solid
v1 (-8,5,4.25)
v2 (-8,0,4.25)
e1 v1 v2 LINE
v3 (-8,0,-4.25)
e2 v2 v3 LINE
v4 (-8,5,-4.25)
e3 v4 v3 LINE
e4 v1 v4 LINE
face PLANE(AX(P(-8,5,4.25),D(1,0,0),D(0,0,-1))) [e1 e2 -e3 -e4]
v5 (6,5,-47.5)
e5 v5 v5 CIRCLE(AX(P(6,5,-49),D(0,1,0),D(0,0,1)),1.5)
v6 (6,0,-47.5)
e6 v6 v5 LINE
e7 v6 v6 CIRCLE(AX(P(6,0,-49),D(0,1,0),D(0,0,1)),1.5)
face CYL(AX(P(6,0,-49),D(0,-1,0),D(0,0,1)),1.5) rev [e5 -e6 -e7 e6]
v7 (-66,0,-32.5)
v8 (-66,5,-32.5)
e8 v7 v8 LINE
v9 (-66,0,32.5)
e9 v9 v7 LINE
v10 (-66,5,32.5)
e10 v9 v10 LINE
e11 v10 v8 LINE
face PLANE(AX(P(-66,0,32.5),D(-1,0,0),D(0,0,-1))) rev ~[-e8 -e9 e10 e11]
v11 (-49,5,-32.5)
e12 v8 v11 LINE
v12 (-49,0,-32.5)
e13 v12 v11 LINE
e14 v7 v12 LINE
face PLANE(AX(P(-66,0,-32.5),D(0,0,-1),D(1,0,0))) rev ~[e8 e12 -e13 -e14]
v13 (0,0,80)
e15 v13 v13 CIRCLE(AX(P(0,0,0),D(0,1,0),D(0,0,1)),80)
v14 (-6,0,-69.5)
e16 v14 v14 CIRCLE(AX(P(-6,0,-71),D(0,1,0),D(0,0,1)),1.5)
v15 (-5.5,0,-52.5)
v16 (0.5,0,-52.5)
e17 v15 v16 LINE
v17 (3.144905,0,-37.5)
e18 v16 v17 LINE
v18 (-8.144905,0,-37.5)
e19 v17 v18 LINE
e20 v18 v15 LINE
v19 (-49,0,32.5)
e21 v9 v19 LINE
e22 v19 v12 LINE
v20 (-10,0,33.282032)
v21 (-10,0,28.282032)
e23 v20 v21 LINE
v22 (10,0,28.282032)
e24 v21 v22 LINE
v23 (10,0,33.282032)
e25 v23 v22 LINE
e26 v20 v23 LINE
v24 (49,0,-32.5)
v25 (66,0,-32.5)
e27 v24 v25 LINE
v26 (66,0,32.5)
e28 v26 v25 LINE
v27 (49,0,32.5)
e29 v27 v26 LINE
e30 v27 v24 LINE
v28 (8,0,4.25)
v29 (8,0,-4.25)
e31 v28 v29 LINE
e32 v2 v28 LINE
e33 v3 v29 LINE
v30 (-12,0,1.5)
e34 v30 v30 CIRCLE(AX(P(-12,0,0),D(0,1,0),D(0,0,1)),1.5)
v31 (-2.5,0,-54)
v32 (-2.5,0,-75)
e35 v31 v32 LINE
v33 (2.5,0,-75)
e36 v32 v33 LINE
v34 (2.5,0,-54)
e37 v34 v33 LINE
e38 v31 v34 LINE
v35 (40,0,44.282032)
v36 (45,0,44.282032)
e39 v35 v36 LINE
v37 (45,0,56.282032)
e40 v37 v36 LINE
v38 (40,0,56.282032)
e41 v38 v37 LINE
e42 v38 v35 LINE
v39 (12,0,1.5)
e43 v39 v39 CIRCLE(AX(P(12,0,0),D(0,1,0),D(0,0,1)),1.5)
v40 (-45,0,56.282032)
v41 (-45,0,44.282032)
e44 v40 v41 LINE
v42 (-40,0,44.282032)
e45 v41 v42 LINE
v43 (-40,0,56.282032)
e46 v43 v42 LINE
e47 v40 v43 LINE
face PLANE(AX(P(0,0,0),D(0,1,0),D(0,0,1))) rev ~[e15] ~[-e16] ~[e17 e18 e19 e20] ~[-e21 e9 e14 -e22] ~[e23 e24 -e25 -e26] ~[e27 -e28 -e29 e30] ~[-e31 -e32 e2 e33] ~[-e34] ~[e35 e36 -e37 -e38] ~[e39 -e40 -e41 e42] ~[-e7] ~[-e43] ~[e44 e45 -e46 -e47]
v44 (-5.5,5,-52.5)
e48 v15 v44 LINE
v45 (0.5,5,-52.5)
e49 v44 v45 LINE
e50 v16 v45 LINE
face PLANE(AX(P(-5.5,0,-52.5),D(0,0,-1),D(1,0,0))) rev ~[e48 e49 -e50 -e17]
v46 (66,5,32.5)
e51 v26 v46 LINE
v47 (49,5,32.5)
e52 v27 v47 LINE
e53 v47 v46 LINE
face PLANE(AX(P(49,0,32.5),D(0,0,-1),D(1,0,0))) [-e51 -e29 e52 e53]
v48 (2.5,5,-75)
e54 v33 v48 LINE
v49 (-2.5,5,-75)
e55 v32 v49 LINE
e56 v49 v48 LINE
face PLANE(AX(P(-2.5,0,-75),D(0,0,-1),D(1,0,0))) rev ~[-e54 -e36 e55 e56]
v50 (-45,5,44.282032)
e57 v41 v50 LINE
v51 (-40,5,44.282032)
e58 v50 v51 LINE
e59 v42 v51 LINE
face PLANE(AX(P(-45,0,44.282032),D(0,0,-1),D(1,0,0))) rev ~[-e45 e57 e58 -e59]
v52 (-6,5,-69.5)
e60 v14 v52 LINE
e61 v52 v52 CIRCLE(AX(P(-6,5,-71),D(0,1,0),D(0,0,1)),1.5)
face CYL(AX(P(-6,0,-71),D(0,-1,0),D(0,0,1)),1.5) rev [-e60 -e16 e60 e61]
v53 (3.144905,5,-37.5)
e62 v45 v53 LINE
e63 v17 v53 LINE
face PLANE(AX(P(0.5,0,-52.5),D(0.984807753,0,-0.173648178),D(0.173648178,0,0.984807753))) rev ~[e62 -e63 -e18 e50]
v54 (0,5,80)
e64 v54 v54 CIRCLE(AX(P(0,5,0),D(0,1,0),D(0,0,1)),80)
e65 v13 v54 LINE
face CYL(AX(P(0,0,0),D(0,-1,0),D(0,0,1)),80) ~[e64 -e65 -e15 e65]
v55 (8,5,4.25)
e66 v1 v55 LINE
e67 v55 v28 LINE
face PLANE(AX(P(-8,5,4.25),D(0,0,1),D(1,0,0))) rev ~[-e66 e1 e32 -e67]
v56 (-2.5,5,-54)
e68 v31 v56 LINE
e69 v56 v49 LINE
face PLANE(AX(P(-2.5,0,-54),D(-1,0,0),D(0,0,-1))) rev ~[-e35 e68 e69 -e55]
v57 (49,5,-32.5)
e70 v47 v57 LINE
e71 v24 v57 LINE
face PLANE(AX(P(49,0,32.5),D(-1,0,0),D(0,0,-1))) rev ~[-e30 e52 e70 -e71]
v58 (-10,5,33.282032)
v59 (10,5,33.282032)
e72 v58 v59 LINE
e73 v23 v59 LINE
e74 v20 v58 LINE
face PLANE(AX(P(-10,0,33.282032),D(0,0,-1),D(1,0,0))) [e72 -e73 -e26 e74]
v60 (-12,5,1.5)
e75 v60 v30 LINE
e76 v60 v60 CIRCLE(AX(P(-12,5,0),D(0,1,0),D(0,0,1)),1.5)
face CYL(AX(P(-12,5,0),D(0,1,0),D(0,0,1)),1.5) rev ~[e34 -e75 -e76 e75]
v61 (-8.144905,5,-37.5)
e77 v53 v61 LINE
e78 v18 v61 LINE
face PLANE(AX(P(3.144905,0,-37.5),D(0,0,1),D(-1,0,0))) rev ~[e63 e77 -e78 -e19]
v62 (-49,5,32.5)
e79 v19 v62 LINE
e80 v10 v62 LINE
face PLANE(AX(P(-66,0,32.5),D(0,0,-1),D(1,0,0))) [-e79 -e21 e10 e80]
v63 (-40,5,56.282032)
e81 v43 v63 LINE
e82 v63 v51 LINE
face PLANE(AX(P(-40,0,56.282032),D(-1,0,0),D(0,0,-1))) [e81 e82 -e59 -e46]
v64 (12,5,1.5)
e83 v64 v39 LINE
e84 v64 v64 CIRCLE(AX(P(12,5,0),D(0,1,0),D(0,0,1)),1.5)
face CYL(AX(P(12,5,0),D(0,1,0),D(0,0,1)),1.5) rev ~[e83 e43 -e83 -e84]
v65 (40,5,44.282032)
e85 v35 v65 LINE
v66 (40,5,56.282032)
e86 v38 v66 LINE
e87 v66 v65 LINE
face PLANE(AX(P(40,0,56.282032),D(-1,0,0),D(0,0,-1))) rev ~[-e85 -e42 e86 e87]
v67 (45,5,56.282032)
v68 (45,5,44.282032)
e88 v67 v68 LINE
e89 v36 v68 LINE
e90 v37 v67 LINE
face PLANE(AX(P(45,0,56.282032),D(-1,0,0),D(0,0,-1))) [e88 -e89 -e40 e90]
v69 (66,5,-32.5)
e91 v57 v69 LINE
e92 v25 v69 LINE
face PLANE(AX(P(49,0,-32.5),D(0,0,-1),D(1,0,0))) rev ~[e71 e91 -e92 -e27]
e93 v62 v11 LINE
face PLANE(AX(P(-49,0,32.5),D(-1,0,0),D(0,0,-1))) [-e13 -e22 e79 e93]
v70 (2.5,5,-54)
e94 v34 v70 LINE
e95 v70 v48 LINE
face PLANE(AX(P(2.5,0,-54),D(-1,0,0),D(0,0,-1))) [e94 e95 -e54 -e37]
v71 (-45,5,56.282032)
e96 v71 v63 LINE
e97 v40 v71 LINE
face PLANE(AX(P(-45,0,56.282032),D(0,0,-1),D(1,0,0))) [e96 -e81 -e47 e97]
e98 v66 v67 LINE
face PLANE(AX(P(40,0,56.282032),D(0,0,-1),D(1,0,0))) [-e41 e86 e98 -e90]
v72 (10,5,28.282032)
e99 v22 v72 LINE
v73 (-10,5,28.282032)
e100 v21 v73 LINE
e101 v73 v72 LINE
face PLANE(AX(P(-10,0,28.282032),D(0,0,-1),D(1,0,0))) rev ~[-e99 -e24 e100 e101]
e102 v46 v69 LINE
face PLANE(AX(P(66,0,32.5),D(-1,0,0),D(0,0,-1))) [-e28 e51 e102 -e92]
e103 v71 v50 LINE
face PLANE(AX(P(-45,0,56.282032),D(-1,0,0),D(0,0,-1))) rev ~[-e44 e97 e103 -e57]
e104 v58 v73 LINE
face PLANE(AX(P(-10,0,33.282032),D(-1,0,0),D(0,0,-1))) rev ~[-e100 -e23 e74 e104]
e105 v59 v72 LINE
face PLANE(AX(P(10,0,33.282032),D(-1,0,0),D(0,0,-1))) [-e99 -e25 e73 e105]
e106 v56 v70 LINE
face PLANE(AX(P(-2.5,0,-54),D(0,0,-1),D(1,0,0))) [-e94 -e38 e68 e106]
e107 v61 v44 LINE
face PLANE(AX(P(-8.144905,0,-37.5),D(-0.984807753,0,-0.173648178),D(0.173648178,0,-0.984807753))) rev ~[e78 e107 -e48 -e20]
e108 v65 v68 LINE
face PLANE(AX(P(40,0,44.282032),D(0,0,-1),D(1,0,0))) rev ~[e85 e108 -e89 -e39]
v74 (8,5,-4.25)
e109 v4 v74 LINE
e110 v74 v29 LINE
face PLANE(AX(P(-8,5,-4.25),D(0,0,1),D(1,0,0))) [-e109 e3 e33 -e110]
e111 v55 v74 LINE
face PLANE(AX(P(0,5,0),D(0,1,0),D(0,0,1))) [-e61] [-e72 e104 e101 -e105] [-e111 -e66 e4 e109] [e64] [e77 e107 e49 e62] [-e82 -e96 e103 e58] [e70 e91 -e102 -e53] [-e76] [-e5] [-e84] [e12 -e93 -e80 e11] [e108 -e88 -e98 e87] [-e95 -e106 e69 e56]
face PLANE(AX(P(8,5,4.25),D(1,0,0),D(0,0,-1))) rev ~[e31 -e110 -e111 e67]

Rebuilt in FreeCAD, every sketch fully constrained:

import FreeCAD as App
import Part
import Sketcher
from FreeCAD import Vector
Q = App.Units.Quantity


def add_polygon(sketch, points):
    """Adds a closed chain of lines whose ends are joined by coincident constraints."""
    first, n = sketch.GeometryCount, len(points)
    for a, b in zip(points, points[1:] + points[:1]):
        sketch.addGeometry(Part.LineSegment(App.Vector(*a, 0), App.Vector(*b, 0)), False)
    for i in range(n):
        sketch.addConstraint(Sketcher.Constraint("Coincident", first + i, 2, first + (i + 1) % n, 1))

doc = App.newDocument("Part")
body = doc.addObject("PartDesign::Body", "Body")

sketch1 = doc.addObject("Sketcher::SketchObject", "Sketch")
body.addObject(sketch1)
sketch1.AttachmentSupport = (doc.XZ_Plane, [""])
sketch1.MapMode = "FlatFace"
sketch1.addGeometry(Part.Circle(Vector(0, 0, 0), Vector(0, 0, 1), 80), False)
sketch1.addGeometry(Part.Circle(Vector(-6, -71, 0), Vector(0, 0, 1), 1.5), False)
add_polygon(sketch1, [(2.5, -54), (-2.5, -54), (-2.5, -75), (2.5, -75)])
add_polygon(sketch1, [(-8.144905, -37.5), (-5.5, -52.5), (0.5, -52.5), (3.144905, -37.5)])
add_polygon(sketch1, [(-49, 32.5), (-66, 32.5), (-66, -32.5), (-49, -32.5)])
add_polygon(sketch1, [(-40, 56.282032), (-45, 56.282032), (-45, 44.282032), (-40, 44.282032)])
sketch1.addGeometry(Part.Circle(Vector(6, -49, 0), Vector(0, 0, 1), 1.5), False)
add_polygon(sketch1, [(10, 33.282032), (-10, 33.282032), (-10, 28.282032), (10, 28.282032)])
add_polygon(sketch1, [(66, 32.5), (49, 32.5), (49, -32.5), (66, -32.5)])
add_polygon(sketch1, [(45, 56.282032), (40, 56.282032), (40, 44.282032), (45, 44.282032)])
sketch1.addConstraint([
    Sketcher.Constraint("Horizontal", 2),
    Sketcher.Constraint("Vertical", 3),
    Sketcher.Constraint("Horizontal", 4),
    Sketcher.Constraint("Vertical", 5),
    Sketcher.Constraint("Horizontal", 7),
    Sketcher.Constraint("Horizontal", 9),
    Sketcher.Constraint("Horizontal", 10),
    Sketcher.Constraint("Vertical", 11),
    Sketcher.Constraint("Horizontal", 12),
    Sketcher.Constraint("Vertical", 13),
    Sketcher.Constraint("Horizontal", 14),
    Sketcher.Constraint("Vertical", 15),
    Sketcher.Constraint("Horizontal", 16),
    Sketcher.Constraint("Vertical", 17),
    Sketcher.Constraint("Horizontal", 19),
    Sketcher.Constraint("Vertical", 20),
    Sketcher.Constraint("Horizontal", 21),
    Sketcher.Constraint("Vertical", 22),
    Sketcher.Constraint("Horizontal", 23),
    Sketcher.Constraint("Vertical", 24),
    Sketcher.Constraint("Horizontal", 25),
    Sketcher.Constraint("Vertical", 26),
    Sketcher.Constraint("Horizontal", 27),
    Sketcher.Constraint("Vertical", 28),
    Sketcher.Constraint("Horizontal", 29),
    Sketcher.Constraint("Vertical", 30),
    Sketcher.Constraint("Coincident", 0, 3, -1, 1),
    Sketcher.Constraint("Equal", 1, 18),
    Sketcher.Constraint("Symmetric", 12, 2, 23, 2, -1, 1),
    Sketcher.Constraint("Symmetric", 10, 2, 25, 2, -1, 1),
    Sketcher.Constraint("Symmetric", 17, 2, 27, 2, -2),
    Sketcher.Constraint("Symmetric", 15, 2, 29, 2, -2),
    Sketcher.Constraint("Horizontal", 13, 2, 23, 2),
    Sketcher.Constraint("Equal", 4, 14),
    Sketcher.Constraint("Equal", 29, 20),
    Sketcher.Constraint("Equal", 6, 8),
    Sketcher.Constraint("Diameter", 0, 160.0),
    Sketcher.Constraint("Diameter", 1, 3.0),
    Sketcher.Constraint("DistanceX", 2, 2, 2, 1, 5.0),
    Sketcher.Constraint("DistanceX", 7, 1, 7, 2, 6.0),
    Sketcher.Constraint("DistanceX", 10, 2, 10, 1, 17.0),
    Sketcher.Constraint("DistanceX", 19, 2, 19, 1, 20.0),
    Sketcher.Constraint("DistanceY", 3, 2, 3, 1, 21.0),
    Sketcher.Constraint("DistanceY", 11, 2, 11, 1, 65.0),
    Sketcher.Constraint("DistanceY", 15, 2, 15, 1, 12.0),
    Sketcher.Constraint("Angle", 6, Q("-80 deg")),
    Sketcher.Constraint("DistanceX", 1, 3, -1, 1, 6.0),
    Sketcher.Constraint("DistanceY", 1, 3, -1, 1, 71.0),
    Sketcher.Constraint("DistanceX", -1, 1, 18, 3, 6.0),
    Sketcher.Constraint("DistanceY", 18, 3, -1, 1, 49.0),
    Sketcher.Constraint("DistanceY", 2, 2, -1, 1, 54.0),
    Sketcher.Constraint("DistanceX", 10, 2, -1, 1, 66.0),
    Sketcher.Constraint("DistanceX", 14, 2, -1, 1, 45.0),
    Sketcher.Constraint("DistanceX", 19, 2, -1, 1, 10.0),
    Sketcher.Constraint("DistanceX", 6, 2, 2, 2, 3.0),
    Sketcher.Constraint("DistanceY", 7, 2, 8, 2, 15.0),
    Sketcher.Constraint("DistanceY", 9, 2, 10, 2, 70.0),
    Sketcher.Constraint("DistanceY", 19, 2, 16, 2, 11.0),
    Sketcher.Constraint("DistanceX", 2, 2, -1, 1, 2.5),
    Sketcher.Constraint("DistanceY", -1, 1, 14, 2, 56.282032),
])
pad1 = doc.addObject("PartDesign::Pad", "Pad")
body.addObject(pad1)
pad1.Profile = sketch1
pad1.Length = 5
pad1.Reversed = True

sketch2 = doc.addObject("Sketcher::SketchObject", "Sketch001")
body.addObject(sketch2)
sketch2.AttachmentSupport = (doc.XZ_Plane, [""])
sketch2.MapMode = "FlatFace"
sketch2.AttachmentOffset = App.Placement(Vector(0, 0, -5), App.Rotation())
sketch2.addGeometry(Part.Circle(Vector(-12, 0, 0), Vector(0, 0, 1), 1.5), False)
sketch2.addGeometry(Part.Circle(Vector(12, 0, 0), Vector(0, 0, 1), 1.5), False)
add_polygon(sketch2, [(-8, -4.25), (-8, 4.25), (8, 4.25), (8, -4.25)])
sketch2.addConstraint([
    Sketcher.Constraint("Vertical", 2),
    Sketcher.Constraint("Horizontal", 3),
    Sketcher.Constraint("Vertical", 4),
    Sketcher.Constraint("Horizontal", 5),
    Sketcher.Constraint("Equal", 0, 1),
    Sketcher.Constraint("Symmetric", 0, 3, 1, 3, -1, 1),
    Sketcher.Constraint("Symmetric", 2, 2, 4, 2, -1, 1),
    Sketcher.Constraint("PointOnObject", 0, 3, -1),
    Sketcher.Constraint("Diameter", 0, 3.0),
    Sketcher.Constraint("DistanceX", 3, 1, 3, 2, 16.0),
    Sketcher.Constraint("DistanceY", 2, 1, 2, 2, 8.5),
    Sketcher.Constraint("DistanceX", 0, 3, -1, 1, 12.0),
])
pocket1 = doc.addObject("PartDesign::Pocket", "Pocket")
body.addObject(pocket1)
pocket1.Profile = sketch2
pocket1.Length = 10
pocket1.Reversed = True

doc.recompute()
